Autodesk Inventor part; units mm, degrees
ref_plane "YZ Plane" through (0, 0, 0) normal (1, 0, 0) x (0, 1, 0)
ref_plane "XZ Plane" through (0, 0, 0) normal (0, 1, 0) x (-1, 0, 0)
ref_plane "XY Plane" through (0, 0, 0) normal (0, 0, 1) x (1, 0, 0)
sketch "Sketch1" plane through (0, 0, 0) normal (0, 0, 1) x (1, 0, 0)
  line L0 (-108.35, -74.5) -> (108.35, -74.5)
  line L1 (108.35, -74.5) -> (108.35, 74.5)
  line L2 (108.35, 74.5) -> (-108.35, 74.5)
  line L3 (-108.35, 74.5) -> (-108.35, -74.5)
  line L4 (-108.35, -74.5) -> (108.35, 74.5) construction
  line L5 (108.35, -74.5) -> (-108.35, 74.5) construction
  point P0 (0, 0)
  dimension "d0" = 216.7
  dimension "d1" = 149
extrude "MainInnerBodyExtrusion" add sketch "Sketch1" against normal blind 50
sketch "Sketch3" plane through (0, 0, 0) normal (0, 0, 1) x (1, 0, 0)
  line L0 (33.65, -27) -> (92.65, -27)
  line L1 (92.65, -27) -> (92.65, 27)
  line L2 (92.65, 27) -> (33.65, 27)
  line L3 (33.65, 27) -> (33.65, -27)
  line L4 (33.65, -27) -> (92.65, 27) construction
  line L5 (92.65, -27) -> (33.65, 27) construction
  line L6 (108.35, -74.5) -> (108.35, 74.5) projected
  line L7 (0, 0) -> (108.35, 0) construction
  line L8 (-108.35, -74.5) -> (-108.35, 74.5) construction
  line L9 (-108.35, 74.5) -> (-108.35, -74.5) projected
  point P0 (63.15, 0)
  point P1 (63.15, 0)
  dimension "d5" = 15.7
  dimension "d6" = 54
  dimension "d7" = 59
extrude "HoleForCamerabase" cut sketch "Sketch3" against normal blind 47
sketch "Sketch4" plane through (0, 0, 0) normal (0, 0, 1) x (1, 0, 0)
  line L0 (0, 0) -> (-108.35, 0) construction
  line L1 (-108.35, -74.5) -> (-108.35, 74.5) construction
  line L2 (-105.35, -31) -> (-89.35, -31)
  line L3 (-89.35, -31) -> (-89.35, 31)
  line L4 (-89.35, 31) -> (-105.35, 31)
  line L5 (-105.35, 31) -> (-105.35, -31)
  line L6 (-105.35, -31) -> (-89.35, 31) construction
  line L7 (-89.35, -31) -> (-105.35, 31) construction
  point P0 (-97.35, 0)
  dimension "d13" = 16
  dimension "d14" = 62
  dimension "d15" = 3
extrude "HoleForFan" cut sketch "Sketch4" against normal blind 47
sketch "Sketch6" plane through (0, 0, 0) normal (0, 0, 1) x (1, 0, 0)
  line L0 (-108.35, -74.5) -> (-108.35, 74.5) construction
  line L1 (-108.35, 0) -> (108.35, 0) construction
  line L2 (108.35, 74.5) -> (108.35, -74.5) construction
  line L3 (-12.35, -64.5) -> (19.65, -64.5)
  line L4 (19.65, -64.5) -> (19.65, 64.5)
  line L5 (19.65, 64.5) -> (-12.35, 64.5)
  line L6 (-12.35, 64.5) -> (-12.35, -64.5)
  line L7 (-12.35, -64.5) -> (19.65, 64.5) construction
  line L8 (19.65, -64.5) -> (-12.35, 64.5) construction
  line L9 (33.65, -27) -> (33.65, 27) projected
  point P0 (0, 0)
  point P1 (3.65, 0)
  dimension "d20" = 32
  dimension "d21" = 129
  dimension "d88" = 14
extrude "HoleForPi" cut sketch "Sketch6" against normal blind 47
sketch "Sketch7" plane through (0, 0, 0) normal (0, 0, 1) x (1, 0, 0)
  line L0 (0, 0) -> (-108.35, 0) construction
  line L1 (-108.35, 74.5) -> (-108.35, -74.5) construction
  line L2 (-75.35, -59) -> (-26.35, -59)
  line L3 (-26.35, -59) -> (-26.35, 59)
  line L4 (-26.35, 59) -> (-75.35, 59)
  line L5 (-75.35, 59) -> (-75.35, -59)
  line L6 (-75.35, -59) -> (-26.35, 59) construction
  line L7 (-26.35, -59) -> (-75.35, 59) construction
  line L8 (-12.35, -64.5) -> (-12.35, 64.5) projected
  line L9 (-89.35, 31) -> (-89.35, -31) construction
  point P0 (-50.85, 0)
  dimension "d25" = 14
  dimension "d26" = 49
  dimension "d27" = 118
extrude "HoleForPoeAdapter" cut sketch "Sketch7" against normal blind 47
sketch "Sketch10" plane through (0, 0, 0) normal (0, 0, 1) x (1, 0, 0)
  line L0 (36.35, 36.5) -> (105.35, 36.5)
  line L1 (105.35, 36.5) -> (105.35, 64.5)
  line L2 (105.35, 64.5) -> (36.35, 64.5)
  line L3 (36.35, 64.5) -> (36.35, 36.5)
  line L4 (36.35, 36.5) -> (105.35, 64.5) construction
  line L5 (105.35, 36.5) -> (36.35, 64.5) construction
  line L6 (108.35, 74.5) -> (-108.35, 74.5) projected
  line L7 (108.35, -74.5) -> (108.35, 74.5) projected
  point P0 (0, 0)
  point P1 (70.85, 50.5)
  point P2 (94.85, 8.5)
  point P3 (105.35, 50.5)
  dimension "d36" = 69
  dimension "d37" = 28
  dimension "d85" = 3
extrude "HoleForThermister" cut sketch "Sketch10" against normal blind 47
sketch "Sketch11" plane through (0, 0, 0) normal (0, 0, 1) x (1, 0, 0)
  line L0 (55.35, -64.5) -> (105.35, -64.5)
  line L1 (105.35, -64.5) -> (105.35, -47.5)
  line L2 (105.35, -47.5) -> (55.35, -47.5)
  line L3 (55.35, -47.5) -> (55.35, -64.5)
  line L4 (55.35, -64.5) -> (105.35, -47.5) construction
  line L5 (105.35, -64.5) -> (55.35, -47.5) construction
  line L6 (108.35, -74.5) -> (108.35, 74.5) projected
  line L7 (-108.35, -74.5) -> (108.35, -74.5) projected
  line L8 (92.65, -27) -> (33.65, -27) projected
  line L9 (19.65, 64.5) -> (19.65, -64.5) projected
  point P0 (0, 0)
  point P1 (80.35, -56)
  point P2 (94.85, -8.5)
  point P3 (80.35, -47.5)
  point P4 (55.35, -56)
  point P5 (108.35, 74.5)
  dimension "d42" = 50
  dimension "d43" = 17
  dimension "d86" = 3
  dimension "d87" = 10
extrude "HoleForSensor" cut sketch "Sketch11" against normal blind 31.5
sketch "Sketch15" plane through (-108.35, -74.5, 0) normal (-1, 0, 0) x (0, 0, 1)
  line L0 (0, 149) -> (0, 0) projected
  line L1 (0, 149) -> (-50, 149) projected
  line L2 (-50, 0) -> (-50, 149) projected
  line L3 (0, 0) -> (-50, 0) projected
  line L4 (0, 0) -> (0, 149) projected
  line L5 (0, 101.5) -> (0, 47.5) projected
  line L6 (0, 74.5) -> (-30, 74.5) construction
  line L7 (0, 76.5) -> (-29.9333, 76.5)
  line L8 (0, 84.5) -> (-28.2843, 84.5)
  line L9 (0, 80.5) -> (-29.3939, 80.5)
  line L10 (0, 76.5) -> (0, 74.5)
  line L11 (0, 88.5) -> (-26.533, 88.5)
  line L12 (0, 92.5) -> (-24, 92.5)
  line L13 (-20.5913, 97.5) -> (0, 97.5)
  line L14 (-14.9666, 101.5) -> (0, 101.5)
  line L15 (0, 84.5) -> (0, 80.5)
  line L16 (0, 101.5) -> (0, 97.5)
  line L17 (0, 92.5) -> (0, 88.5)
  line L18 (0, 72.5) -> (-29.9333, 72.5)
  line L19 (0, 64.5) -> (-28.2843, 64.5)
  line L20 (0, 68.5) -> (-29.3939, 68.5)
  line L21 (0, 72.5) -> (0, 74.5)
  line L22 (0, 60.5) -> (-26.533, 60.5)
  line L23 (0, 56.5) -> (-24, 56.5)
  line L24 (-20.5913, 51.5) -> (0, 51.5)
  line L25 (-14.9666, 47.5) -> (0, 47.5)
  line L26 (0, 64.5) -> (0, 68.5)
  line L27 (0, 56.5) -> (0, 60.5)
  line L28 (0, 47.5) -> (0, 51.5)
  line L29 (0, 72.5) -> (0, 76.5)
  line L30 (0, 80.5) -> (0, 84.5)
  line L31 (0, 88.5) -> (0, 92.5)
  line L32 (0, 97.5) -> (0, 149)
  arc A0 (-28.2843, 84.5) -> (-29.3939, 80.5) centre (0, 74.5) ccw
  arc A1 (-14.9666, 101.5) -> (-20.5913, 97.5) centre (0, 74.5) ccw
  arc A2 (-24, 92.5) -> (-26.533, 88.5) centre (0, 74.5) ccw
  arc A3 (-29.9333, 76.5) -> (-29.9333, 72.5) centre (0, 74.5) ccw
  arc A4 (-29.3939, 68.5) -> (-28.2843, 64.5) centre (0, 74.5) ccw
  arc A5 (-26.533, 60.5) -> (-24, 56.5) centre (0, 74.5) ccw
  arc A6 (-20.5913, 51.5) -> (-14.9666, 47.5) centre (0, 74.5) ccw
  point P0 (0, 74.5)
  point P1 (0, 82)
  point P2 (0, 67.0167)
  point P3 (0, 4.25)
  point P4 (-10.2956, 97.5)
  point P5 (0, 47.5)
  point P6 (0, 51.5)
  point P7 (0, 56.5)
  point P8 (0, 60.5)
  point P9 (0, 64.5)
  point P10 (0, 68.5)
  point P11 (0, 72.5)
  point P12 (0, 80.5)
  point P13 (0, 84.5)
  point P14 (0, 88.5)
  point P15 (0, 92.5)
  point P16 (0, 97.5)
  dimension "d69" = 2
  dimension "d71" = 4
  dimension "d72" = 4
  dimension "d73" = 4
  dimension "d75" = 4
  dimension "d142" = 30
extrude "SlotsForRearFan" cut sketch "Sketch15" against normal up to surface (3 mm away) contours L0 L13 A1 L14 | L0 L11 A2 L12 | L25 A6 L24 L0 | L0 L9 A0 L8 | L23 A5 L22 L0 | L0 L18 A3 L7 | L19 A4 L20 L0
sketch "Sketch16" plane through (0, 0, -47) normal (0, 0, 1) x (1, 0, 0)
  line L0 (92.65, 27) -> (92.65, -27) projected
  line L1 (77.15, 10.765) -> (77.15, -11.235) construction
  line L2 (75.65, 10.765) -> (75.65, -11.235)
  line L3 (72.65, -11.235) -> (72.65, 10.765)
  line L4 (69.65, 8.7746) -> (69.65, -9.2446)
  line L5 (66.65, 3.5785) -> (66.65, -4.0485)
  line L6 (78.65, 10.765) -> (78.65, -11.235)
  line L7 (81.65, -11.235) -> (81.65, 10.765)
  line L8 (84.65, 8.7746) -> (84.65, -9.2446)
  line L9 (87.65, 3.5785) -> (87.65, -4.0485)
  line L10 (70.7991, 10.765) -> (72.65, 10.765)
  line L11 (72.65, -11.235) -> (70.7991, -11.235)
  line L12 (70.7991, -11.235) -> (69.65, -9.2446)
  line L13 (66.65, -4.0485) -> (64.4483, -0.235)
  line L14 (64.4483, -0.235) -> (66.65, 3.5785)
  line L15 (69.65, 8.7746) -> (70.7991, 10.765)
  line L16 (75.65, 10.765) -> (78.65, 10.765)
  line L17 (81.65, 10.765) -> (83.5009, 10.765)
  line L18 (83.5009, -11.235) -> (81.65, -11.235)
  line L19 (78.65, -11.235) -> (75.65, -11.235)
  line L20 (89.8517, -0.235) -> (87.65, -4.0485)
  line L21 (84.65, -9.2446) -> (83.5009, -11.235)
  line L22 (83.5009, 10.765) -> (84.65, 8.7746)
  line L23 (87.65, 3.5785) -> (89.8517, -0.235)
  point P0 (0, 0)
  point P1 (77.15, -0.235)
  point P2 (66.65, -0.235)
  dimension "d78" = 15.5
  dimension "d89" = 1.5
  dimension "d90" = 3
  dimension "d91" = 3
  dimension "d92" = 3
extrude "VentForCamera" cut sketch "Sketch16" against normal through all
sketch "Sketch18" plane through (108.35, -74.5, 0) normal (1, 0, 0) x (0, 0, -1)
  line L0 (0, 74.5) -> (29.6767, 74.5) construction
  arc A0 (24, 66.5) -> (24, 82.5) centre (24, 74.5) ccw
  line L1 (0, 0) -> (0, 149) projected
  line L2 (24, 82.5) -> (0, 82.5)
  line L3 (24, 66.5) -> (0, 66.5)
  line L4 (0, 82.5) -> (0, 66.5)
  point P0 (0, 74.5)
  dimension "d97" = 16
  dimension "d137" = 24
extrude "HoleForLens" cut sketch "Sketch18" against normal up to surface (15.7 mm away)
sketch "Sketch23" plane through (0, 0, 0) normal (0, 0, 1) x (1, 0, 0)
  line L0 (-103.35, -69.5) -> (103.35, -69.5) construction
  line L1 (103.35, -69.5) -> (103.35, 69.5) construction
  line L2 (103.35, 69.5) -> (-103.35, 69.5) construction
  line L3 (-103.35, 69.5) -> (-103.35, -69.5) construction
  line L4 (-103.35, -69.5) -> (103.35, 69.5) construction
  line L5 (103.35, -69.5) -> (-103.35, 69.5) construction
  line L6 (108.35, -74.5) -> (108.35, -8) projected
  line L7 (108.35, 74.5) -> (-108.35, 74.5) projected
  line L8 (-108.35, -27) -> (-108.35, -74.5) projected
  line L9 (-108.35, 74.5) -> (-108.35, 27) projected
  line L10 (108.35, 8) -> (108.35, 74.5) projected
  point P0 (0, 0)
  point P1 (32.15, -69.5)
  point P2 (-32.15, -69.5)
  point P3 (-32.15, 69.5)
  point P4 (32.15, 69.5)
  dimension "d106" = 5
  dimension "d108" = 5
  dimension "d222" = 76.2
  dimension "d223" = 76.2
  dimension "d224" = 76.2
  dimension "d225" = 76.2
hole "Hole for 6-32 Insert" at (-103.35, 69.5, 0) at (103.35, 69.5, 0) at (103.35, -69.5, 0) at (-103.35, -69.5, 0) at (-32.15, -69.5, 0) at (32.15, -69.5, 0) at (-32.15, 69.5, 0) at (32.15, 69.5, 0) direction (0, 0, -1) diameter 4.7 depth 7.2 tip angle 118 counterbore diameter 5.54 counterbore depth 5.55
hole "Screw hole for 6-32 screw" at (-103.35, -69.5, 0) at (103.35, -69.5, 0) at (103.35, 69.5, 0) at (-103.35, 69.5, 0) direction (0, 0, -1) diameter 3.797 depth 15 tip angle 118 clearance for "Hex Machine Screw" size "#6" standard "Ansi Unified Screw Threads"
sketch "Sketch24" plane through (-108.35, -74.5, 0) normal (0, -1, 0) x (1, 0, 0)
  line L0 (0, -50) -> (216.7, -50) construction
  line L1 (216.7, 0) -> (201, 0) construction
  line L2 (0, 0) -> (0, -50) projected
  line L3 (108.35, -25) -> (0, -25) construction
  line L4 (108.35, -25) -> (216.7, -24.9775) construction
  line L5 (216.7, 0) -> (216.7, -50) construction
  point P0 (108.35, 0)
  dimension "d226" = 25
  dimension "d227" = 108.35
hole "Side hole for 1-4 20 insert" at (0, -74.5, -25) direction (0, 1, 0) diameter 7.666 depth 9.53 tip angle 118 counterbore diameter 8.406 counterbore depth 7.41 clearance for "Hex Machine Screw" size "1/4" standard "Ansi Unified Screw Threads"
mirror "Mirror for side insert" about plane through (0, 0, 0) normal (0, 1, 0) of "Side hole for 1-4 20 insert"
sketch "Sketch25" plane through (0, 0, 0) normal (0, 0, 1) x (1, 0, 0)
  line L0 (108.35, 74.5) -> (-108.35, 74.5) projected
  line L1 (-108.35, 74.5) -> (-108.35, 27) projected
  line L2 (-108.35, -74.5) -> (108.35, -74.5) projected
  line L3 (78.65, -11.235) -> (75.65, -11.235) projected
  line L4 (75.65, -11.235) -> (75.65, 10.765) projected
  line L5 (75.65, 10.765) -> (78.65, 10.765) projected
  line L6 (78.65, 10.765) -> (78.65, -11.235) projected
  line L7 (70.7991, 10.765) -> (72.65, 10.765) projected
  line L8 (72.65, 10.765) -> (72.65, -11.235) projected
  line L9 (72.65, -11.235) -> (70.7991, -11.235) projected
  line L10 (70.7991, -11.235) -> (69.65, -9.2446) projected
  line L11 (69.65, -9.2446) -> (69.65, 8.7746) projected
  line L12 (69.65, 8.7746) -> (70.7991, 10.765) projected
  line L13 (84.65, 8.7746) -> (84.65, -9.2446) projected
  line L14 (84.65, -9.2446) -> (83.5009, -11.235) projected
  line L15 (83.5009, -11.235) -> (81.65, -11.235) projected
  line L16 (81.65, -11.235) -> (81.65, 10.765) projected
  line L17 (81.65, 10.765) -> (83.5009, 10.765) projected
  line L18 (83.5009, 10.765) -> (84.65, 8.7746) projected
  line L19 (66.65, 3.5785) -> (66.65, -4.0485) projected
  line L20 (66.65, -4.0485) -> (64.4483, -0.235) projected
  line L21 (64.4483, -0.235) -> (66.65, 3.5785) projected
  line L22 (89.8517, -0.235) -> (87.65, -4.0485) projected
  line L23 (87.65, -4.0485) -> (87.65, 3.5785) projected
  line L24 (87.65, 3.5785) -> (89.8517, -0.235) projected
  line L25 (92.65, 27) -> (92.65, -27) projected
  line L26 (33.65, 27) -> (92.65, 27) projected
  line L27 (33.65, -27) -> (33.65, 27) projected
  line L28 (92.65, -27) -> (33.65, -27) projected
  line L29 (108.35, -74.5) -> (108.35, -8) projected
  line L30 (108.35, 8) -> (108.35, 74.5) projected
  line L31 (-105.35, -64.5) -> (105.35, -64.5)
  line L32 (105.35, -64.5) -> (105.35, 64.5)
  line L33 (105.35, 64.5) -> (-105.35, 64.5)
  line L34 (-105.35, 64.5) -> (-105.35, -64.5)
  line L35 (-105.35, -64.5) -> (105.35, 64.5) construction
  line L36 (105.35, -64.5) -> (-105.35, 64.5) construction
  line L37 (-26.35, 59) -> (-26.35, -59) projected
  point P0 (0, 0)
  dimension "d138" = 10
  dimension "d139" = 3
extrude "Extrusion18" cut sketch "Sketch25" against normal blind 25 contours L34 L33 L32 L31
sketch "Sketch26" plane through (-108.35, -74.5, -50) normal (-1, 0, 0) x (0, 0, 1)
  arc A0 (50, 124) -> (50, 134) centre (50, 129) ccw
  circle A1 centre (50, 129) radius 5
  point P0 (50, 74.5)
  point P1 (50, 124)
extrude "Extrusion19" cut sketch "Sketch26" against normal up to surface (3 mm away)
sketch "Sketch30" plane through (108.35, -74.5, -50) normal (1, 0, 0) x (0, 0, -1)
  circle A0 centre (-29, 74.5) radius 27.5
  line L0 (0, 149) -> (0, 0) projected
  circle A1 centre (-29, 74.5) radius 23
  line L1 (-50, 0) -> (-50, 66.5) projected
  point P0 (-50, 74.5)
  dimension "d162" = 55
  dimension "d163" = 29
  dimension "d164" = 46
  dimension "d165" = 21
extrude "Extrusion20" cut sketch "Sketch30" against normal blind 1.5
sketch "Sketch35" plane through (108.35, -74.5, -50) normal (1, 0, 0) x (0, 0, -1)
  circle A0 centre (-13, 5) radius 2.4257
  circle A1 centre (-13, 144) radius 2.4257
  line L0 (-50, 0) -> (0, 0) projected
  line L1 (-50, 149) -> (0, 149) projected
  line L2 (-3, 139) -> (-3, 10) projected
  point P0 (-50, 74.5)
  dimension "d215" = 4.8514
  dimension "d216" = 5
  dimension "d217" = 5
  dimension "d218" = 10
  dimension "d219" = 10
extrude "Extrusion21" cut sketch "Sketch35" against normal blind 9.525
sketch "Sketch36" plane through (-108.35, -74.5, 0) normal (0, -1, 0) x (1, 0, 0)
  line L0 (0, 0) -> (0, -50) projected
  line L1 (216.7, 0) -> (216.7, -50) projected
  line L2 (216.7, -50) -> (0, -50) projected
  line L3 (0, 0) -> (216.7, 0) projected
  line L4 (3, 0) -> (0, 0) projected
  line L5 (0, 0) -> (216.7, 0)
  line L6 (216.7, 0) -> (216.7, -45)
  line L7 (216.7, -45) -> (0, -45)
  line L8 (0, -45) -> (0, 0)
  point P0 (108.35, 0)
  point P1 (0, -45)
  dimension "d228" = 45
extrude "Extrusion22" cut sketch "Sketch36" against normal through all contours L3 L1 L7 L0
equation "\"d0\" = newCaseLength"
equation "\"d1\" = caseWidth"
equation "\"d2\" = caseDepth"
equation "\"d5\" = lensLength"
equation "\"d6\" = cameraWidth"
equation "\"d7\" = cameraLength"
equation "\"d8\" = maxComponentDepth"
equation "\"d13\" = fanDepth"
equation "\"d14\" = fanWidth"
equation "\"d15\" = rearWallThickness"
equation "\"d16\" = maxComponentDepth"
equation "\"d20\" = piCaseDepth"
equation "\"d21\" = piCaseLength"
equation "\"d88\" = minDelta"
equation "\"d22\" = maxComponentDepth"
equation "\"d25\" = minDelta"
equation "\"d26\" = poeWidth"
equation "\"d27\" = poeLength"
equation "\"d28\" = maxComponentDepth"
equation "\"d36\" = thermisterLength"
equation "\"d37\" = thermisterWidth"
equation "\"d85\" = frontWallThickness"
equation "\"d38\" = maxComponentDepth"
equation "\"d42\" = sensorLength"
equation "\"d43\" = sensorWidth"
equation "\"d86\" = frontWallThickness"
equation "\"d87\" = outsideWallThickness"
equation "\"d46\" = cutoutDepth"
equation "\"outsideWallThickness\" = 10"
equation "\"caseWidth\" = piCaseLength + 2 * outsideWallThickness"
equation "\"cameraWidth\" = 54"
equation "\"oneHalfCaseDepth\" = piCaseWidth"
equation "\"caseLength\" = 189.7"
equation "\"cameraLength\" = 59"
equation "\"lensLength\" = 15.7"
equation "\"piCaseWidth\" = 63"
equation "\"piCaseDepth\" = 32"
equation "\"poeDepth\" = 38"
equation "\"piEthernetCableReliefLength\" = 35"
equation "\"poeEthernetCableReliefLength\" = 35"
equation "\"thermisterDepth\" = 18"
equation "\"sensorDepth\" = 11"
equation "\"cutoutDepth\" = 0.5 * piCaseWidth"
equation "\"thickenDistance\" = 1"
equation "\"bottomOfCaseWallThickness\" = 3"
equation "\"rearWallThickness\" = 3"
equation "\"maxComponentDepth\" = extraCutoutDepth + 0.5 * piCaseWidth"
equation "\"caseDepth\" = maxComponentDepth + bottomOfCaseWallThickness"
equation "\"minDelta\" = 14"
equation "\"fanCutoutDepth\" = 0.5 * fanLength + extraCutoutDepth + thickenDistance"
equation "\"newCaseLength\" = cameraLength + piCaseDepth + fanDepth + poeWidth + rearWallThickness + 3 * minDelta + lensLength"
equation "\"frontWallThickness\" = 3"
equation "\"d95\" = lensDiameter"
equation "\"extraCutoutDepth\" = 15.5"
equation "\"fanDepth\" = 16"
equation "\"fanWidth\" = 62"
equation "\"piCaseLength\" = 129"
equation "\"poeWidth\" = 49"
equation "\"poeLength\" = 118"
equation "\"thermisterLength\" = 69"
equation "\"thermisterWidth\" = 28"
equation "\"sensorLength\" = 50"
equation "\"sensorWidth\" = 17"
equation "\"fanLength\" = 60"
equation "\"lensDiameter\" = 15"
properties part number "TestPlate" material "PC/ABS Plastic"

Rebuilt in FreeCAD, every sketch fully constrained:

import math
import FreeCAD as App
import Part
import Sketcher

V = App.Vector
Q = App.Units.Quantity


def add_polygon(sketch, points):
    """Adds a closed chain of lines whose ends are joined by coincident constraints."""
    first, n = sketch.GeometryCount, len(points)
    for a, b in zip(points, points[1:] + points[:1]):
        sketch.addGeometry(Part.LineSegment(App.Vector(*a, 0), App.Vector(*b, 0)), False)
    for i in range(n):
        sketch.addConstraint(Sketcher.Constraint("Coincident", first + i, 2, first + (i + 1) % n, 1))

doc = App.newDocument("Part")
params = doc.addObject("Spreadsheet::Sheet", "Params")
for row, (alias, value) in enumerate([
    ("sketch1_height", "149 mm"),
    ("sketch1_width", "216.7 mm"),
    ("pad1_length", "50 mm"),
    ("sketch2_width", "59 mm"),
    ("sketch2_height", "54 mm"),
    ("pocket1_length", "47 mm"),
    ("sketch3_width", "16 mm"),
    ("sketch3_height", "62 mm"),
    ("pocket2_length", "47 mm"),
    ("sketch4_width", "32 mm"),
    ("sketch4_height", "129 mm"),
    ("pocket3_length", "47 mm"),
    ("sketch5_width", "49 mm"),
    ("sketch5_height", "118 mm"),
    ("pocket4_length", "47 mm"),
    ("sketch6_width", "69 mm"),
    ("sketch6_height", "28 mm"),
    ("pocket5_length", "47 mm"),
    ("sketch7_width", "50 mm"),
    ("sketch7_height", "17 mm"),
    ("pocket6_length", "31.5 mm"),
    ("sketch8_radius", "30 mm"),
    ("sketch8_width", "4 mm"),
    ("pocket7_length", "3 mm"),
    ("sketch9_width", "3 mm"),
    ("sketch9_height", "22 mm"),
    ("sketch10_radius", "8 mm"),
    ("sketch10_height", "24 mm"),
    ("pocket9_length", "15.7 mm"),
    ("sketch11_diameter", "4.7 mm"),
    ("hole_diameter", "4.7 mm"),
    ("hole_depth", "7.2 mm"),
    ("hole_cbore_diameter", "5.54 mm"),
    ("hole_cbore_depth", "5.55 mm"),
    ("hole2_diameter", "3.797 mm"),
    ("hole2_depth", "15 mm"),
    ("hole3_diameter", "7.666 mm"),
    ("hole3_depth", "9.53 mm"),
    ("hole3_cbore_diameter", "8.406 mm"),
    ("hole3_cbore_depth", "7.41 mm"),
    ("sketch14_width", "59 mm"),
    ("sketch14_height", "129 mm"),
    ("sketch14_height2", "54 mm"),
    ("sketch14_width2", "210.7 mm"),
    ("pocket10_length", "25 mm"),
    ("sketch15_diameter", "10 mm"),
    ("pocket11_length", "3 mm"),
    ("sketch16_diameter", "55 mm"),
    ("sketch16_diameter2", "46 mm"),
    ("pocket12_length", "1.5 mm"),
    ("pocket13_length", "9.525 mm"),
    ("sketch18_height", "45 mm"),
    ("sketch18_width", "216.7 mm"),
], start=1):
    params.set(f"A{row}", alias)
    params.set(f"B{row}", "=" + value)
    params.setAlias(f"B{row}", alias)

body = doc.addObject("PartDesign::Body", "Body")

# Sketch on XY plane
sketch1 = doc.addObject("Sketcher::SketchObject", "Sketch")
body.addObject(sketch1)
sketch1.AttachmentSupport = (doc.XY_Plane, [""])
sketch1.MapMode = "FlatFace"
add_polygon(sketch1, [(-108, 74), (-108, -74), (108, -74), (108, 74)])  # lines 0-3
sketch1.addConstraint([
    Sketcher.Constraint("Vertical", 0),
    Sketcher.Constraint("Horizontal", 1),
    Sketcher.Constraint("Vertical", 2),
    Sketcher.Constraint("Horizontal", 3),
    Sketcher.Constraint("Symmetric", 0, 2, 2, 2, -1, 1),
    Sketcher.Constraint("DistanceY", 0, 2, 0, 1, Q("149 mm")),
    Sketcher.Constraint("DistanceX", 1, 1, 1, 2, Q("216.7 mm")),
])
sketch1.setExpression("Constraints[9]", "Params.sketch1_height")
sketch1.setExpression("Constraints[10]", "Params.sketch1_width")
pad1 = doc.addObject("PartDesign::Pad", "Pad")
body.addObject(pad1)
pad1.Profile = sketch1
pad1.setExpression("Length", "Params.pad1_length")
pad1.Reversed = True

# Sketch on XY plane
sketch2 = doc.addObject("Sketcher::SketchObject", "Sketch001")
body.addObject(sketch2)
sketch2.AttachmentSupport = (doc.XY_Plane, [""])
sketch2.MapMode = "FlatFace"
add_polygon(sketch2, [(34, 27), (34, -27), (93, -27), (93, 27)])  # lines 0-3
sketch2.addConstraint([
    Sketcher.Constraint("Vertical", 0),
    Sketcher.Constraint("Horizontal", 1),
    Sketcher.Constraint("Vertical", 2),
    Sketcher.Constraint("Horizontal", 3),
    Sketcher.Constraint("DistanceX", 1, 1, 1, 2, Q("59 mm")),
    Sketcher.Constraint("DistanceY", 0, 2, 0, 1, Q("54 mm")),
    Sketcher.Constraint("DistanceY", 0, 2, -1, 1, Q("27 mm")),
    Sketcher.Constraint("DistanceX", -1, 1, 0, 2, Q("33.65 mm")),
])
sketch2.setExpression("Constraints[8]", "Params.sketch2_width")
sketch2.setExpression("Constraints[9]", "Params.sketch2_height")
pocket1 = doc.addObject("PartDesign::Pocket", "Pocket")
body.addObject(pocket1)
pocket1.Profile = sketch2
pocket1.setExpression("Length", "Params.pocket1_length")

# Sketch on XY plane
sketch3 = doc.addObject("Sketcher::SketchObject", "Sketch002")
body.addObject(sketch3)
sketch3.AttachmentSupport = (doc.XY_Plane, [""])
sketch3.MapMode = "FlatFace"
add_polygon(sketch3, [(-105, 31), (-105, -31), (-89, -31), (-89, 31)])  # lines 0-3
sketch3.addConstraint([
    Sketcher.Constraint("Vertical", 0),
    Sketcher.Constraint("Horizontal", 1),
    Sketcher.Constraint("Vertical", 2),
    Sketcher.Constraint("Horizontal", 3),
    Sketcher.Constraint("DistanceX", 1, 1, 1, 2, Q("16 mm")),
    Sketcher.Constraint("DistanceY", 0, 2, 0, 1, Q("62 mm")),
    Sketcher.Constraint("DistanceY", 0, 2, -1, 1, Q("31 mm")),
    Sketcher.Constraint("DistanceX", 0, 2, -1, 1, Q("105.35 mm")),
])
sketch3.setExpression("Constraints[8]", "Params.sketch3_width")
sketch3.setExpression("Constraints[9]", "Params.sketch3_height")
pocket2 = doc.addObject("PartDesign::Pocket", "Pocket001")
body.addObject(pocket2)
pocket2.Profile = sketch3
pocket2.setExpression("Length", "Params.pocket2_length")

# Sketch on XY plane
sketch4 = doc.addObject("Sketcher::SketchObject", "Sketch003")
body.addObject(sketch4)
sketch4.AttachmentSupport = (doc.XY_Plane, [""])
sketch4.MapMode = "FlatFace"
add_polygon(sketch4, [(-12, 64), (-12, -64), (20, -64), (20, 64)])  # lines 0-3
sketch4.addConstraint([
    Sketcher.Constraint("Vertical", 0),
    Sketcher.Constraint("Horizontal", 1),
    Sketcher.Constraint("Vertical", 2),
    Sketcher.Constraint("Horizontal", 3),
    Sketcher.Constraint("DistanceX", 1, 1, 1, 2, Q("32 mm")),
    Sketcher.Constraint("DistanceY", 0, 2, 0, 1, Q("129 mm")),
    Sketcher.Constraint("DistanceY", 0, 2, -1, 1, Q("64.5 mm")),
    Sketcher.Constraint("DistanceX", 0, 2, -1, 1, Q("12.35 mm")),
])
sketch4.setExpression("Constraints[8]", "Params.sketch4_width")
sketch4.setExpression("Constraints[9]", "Params.sketch4_height")
pocket3 = doc.addObject("PartDesign::Pocket", "Pocket002")
body.addObject(pocket3)
pocket3.Profile = sketch4
pocket3.setExpression("Length", "Params.pocket3_length")

# Sketch on XY plane
sketch5 = doc.addObject("Sketcher::SketchObject", "Sketch004")
body.addObject(sketch5)
sketch5.AttachmentSupport = (doc.XY_Plane, [""])
sketch5.MapMode = "FlatFace"
add_polygon(sketch5, [(-75, 59), (-75, -59), (-26, -59), (-26, 59)])  # lines 0-3
sketch5.addConstraint([
    Sketcher.Constraint("Vertical", 0),
    Sketcher.Constraint("Horizontal", 1),
    Sketcher.Constraint("Vertical", 2),
    Sketcher.Constraint("Horizontal", 3),
    Sketcher.Constraint("DistanceX", 1, 1, 1, 2, Q("49 mm")),
    Sketcher.Constraint("DistanceY", 0, 2, 0, 1, Q("118 mm")),
    Sketcher.Constraint("DistanceY", 0, 2, -1, 1, Q("59 mm")),
    Sketcher.Constraint("DistanceX", 0, 2, -1, 1, Q("75.35 mm")),
])
sketch5.setExpression("Constraints[8]", "Params.sketch5_width")
sketch5.setExpression("Constraints[9]", "Params.sketch5_height")
pocket4 = doc.addObject("PartDesign::Pocket", "Pocket003")
body.addObject(pocket4)
pocket4.Profile = sketch5
pocket4.setExpression("Length", "Params.pocket4_length")

# Sketch on XY plane
sketch6 = doc.addObject("Sketcher::SketchObject", "Sketch005")
body.addObject(sketch6)
sketch6.AttachmentSupport = (doc.XY_Plane, [""])
sketch6.MapMode = "FlatFace"
add_polygon(sketch6, [(36, 64), (36, 36), (105, 36), (105, 64)])  # lines 0-3
sketch6.addConstraint([
    Sketcher.Constraint("Vertical", 0),
    Sketcher.Constraint("Horizontal", 1),
    Sketcher.Constraint("Vertical", 2),
    Sketcher.Constraint("Horizontal", 3),
    Sketcher.Constraint("DistanceX", 1, 1, 1, 2, Q("69 mm")),
    Sketcher.Constraint("DistanceY", 0, 2, 0, 1, Q("28 mm")),
    Sketcher.Constraint("DistanceY", -1, 1, 0, 2, Q("36.5 mm")),
    Sketcher.Constraint("DistanceX", -1, 1, 0, 2, Q("36.35 mm")),
])
sketch6.setExpression("Constraints[8]", "Params.sketch6_width")
sketch6.setExpression("Constraints[9]", "Params.sketch6_height")
pocket5 = doc.addObject("PartDesign::Pocket", "Pocket004")
body.addObject(pocket5)
pocket5.Profile = sketch6
pocket5.setExpression("Length", "Params.pocket5_length")

# Sketch on XY plane
sketch7 = doc.addObject("Sketcher::SketchObject", "Sketch006")
body.addObject(sketch7)
sketch7.AttachmentSupport = (doc.XY_Plane, [""])
sketch7.MapMode = "FlatFace"
add_polygon(sketch7, [(55, -48), (55, -64), (105, -64), (105, -48)])  # lines 0-3
sketch7.addConstraint([
    Sketcher.Constraint("Vertical", 0),
    Sketcher.Constraint("Horizontal", 1),
    Sketcher.Constraint("Vertical", 2),
    Sketcher.Constraint("Horizontal", 3),
    Sketcher.Constraint("DistanceX", 1, 1, 1, 2, Q("50 mm")),
    Sketcher.Constraint("DistanceY", 0, 2, 0, 1, Q("17 mm")),
    Sketcher.Constraint("DistanceY", 0, 2, -1, 1, Q("64.5 mm")),
    Sketcher.Constraint("DistanceX", -1, 1, 0, 2, Q("55.35 mm")),
])
sketch7.setExpression("Constraints[8]", "Params.sketch7_width")
sketch7.setExpression("Constraints[9]", "Params.sketch7_height")
pocket6 = doc.addObject("PartDesign::Pocket", "Pocket005")
body.addObject(pocket6)
pocket6.Profile = sketch7
pocket6.setExpression("Length", "Params.pocket6_length")

# Sketch on YZ plane
sketch8 = doc.addObject("Sketcher::SketchObject", "Sketch007")
body.addObject(sketch8)
sketch8.AttachmentSupport = (doc.YZ_Plane, [""])
sketch8.MapMode = "FlatFace"
sketch8.AttachmentOffset = App.Placement(V(0, 0, -108.35), App.Rotation())
sketch8.addGeometry([
    Part.LineSegment(V(23, 0, 0), V(27, 0, 0)),  # 0
    Part.LineSegment(V(27, 0, 0), V(27, -14.9666, 0)),  # 1
    Part.ArcOfCircle(Part.Circle(V(-0.00276, 0.001738, 0), V(0, 0, 1), 30.87394), math.radians(-41.836243), math.radians(-29.000754)),  # 2
    Part.LineSegment(V(23, -20.5913, 0), V(23, 0, 0)),  # 3
    Part.LineSegment(V(14, 0, 0), V(18, 0, 0)),  # 4
    Part.LineSegment(V(18, 0, 0), V(18, -24, 0)),  # 5
    Part.ArcOfCircle(Part.Circle(V(0, 0, 0), V(0, 0, 1), 30.000041), math.radians(-62.181862), math.radians(-53.130102)),  # 6
    Part.LineSegment(V(14, -26.533, 0), V(14, 0, 0)),  # 7
    Part.LineSegment(V(-27, -14.9666, 0), V(-27, 0, 0)),  # 8
    Part.LineSegment(V(-27, 0, 0), V(-23, 0, 0)),  # 9
    Part.LineSegment(V(-23, 0, 0), V(-23, -20.5913, 0)),  # 10
    Part.ArcOfCircle(Part.Circle(V(-0.002547, -0.002036, 0), V(0, 0, 1), 30.867469), math.radians(-151.000597), math.radians(-138.162406)),  # 11
    Part.LineSegment(V(6, 0, 0), V(10, 0, 0)),  # 12
    Part.LineSegment(V(10, 0, 0), V(10, -28.2843, 0)),  # 13
    Part.ArcOfCircle(Part.Circle(V(0, 0, 0), V(0, 0, 1), 30), math.radians(-78.46305), math.radians(-70.528798)),  # 14
    Part.LineSegment(V(6, -29.3939, 0), V(6, 0, 0)),  # 15
    Part.LineSegment(V(-18, -24, 0), V(-18, 0, 0)),  # 16
    Part.LineSegment(V(-18, 0, 0), V(-14, 0, 0)),  # 17
    Part.LineSegment(V(-14, 0, 0), V(-14, -26.533, 0)),  # 18
    Part.ArcOfCircle(Part.Circle(V(0, 0, 0), V(0, 0, 1), 30), math.radians(-126.869898), math.radians(-117.818138)),  # 19
    Part.LineSegment(V(-2, 0, 0), V(2, 0, 0)),  # 20
    Part.LineSegment(V(2, 0, 0), V(2, -29.9333, 0)),  # 21
    Part.ArcOfCircle(Part.Circle(V(0, 0, 0), V(0, 0, 1), 30.000041), math.radians(-93.822549), math.radians(-86.177451)),  # 22
    Part.LineSegment(V(-2, -29.9333, 0), V(-2, 0, 0)),  # 23
    Part.LineSegment(V(-10, -28.2843, 0), V(-10, 0, 0)),  # 24
    Part.LineSegment(V(-10, 0, 0), V(-6, 0, 0)),  # 25
    Part.LineSegment(V(-6, 0, 0), V(-6, -29.3939, 0)),  # 26
    Part.ArcOfCircle(Part.Circle(V(0, 0, 0), V(0, 0, 1), 30.000041), math.radians(-109.471202), math.radians(-101.53695)),  # 27
], False)
sketch8.addConstraint([
    Sketcher.Constraint("Coincident", 0, 2, 1, 1),
    Sketcher.Constraint("Coincident", 1, 2, 2, 2),
    Sketcher.Constraint("Coincident", 2, 1, 3, 1),
    Sketcher.Constraint("Coincident", 3, 2, 0, 1),
    Sketcher.Constraint("Coincident", 4, 2, 5, 1),
    Sketcher.Constraint("Coincident", 5, 2, 6, 2),
    Sketcher.Constraint("Coincident", 6, 1, 7, 1),
    Sketcher.Constraint("Coincident", 7, 2, 4, 1),
    Sketcher.Constraint("Coincident", 8, 2, 9, 1),
    Sketcher.Constraint("Coincident", 9, 2, 10, 1),
    Sketcher.Constraint("Coincident", 10, 2, 11, 2),
    Sketcher.Constraint("Coincident", 11, 1, 8, 1),
    Sketcher.Constraint("Coincident", 12, 2, 13, 1),
    Sketcher.Constraint("Coincident", 13, 2, 14, 2),
    Sketcher.Constraint("Coincident", 14, 1, 15, 1),
    Sketcher.Constraint("Coincident", 15, 2, 12, 1),
    Sketcher.Constraint("Coincident", 16, 2, 17, 1),
    Sketcher.Constraint("Coincident", 17, 2, 18, 1),
    Sketcher.Constraint("Coincident", 18, 2, 19, 2),
    Sketcher.Constraint("Coincident", 19, 1, 16, 1),
    Sketcher.Constraint("Coincident", 20, 2, 21, 1),
    Sketcher.Constraint("Coincident", 21, 2, 22, 2),
    Sketcher.Constraint("Coincident", 22, 1, 23, 1),
    Sketcher.Constraint("Coincident", 23, 2, 20, 1),
    Sketcher.Constraint("Coincident", 24, 2, 25, 1),
    Sketcher.Constraint("Coincident", 25, 2, 26, 1),
    Sketcher.Constraint("Coincident", 26, 2, 27, 2),
    Sketcher.Constraint("Coincident", 27, 1, 24, 1),
    Sketcher.Constraint("Horizontal", 0),
    Sketcher.Constraint("Vertical", 1),
    Sketcher.Constraint("Vertical", 3),
    Sketcher.Constraint("Horizontal", 4),
    Sketcher.Constraint("Vertical", 5),
    Sketcher.Constraint("Vertical", 7),
    Sketcher.Constraint("Vertical", 8),
    Sketcher.Constraint("Horizontal", 9),
    Sketcher.Constraint("Vertical", 10),
    Sketcher.Constraint("Horizontal", 12),
    Sketcher.Constraint("Vertical", 13),
    Sketcher.Constraint("Vertical", 15),
    Sketcher.Constraint("Vertical", 16),
    Sketcher.Constraint("Horizontal", 17),
    Sketcher.Constraint("Vertical", 18),
    Sketcher.Constraint("Horizontal", 20),
    Sketcher.Constraint("Vertical", 21),
    Sketcher.Constraint("Vertical", 23),
    Sketcher.Constraint("Vertical", 24),
    Sketcher.Constraint("Horizontal", 25),
    Sketcher.Constraint("Vertical", 26),
    Sketcher.Constraint("Coincident", 6, 3, -1, 1),
    Sketcher.Constraint("Coincident", 14, 3, -1, 1),
    Sketcher.Constraint("Coincident", 19, 3, -1, 1),
    Sketcher.Constraint("Coincident", 22, 3, -1, 1),
    Sketcher.Constraint("Coincident", 27, 3, -1, 1),
    Sketcher.Constraint("Equal", 6, 14),
    Sketcher.Constraint("Equal", 14, 19),
    Sketcher.Constraint("Equal", 19, 22),
    Sketcher.Constraint("Equal", 22, 27),
    Sketcher.Constraint("Symmetric", 0, 2, 8, 2, -1, 1),
    Sketcher.Constraint("Symmetric", 4, 2, 16, 2, -1, 1),
    Sketcher.Constraint("Symmetric", 20, 2, 23, 2, -1, 1),
    Sketcher.Constraint("Symmetric", 12, 2, 24, 2, -1, 1),
    Sketcher.Constraint("Symmetric", 3, 2, 9, 2, -2),
    Sketcher.Constraint("Symmetric", 7, 2, 17, 2, -2),
    Sketcher.Constraint("Symmetric", 15, 2, 25, 2, -2),
    Sketcher.Constraint("Symmetric", 2, 3, 11, 3, -1),
    Sketcher.Constraint("Horizontal", 2, 1, 10, 2),
    Sketcher.Constraint("Horizontal", 1, 2, 11, 1),
    Sketcher.Constraint("Equal", 0, 4),
    Sketcher.Constraint("Equal", 9, 12),
    Sketcher.Constraint("Equal", 17, 20),
    Sketcher.Constraint("Radius", 6, Q("30 mm")),
    Sketcher.Constraint("DistanceX", 0, 1, 0, 2, Q("4 mm")),
    Sketcher.Constraint("DistanceX", 12, 2, 7, 2, Q("4 mm")),
    Sketcher.Constraint("DistanceX", 21, 2, 14, 1, Q("4 mm")),
    Sketcher.Constraint("DistanceX", -1, 1, 0, 2, Q("27 mm")),
    Sketcher.Constraint("Radius", 2, Q("30.874 mm")),
    Sketcher.Constraint("Radius", 11, Q("30.8675 mm")),
])
sketch8.setExpression("Constraints[71]", "Params.sketch8_radius")
sketch8.setExpression("Constraints[72]", "Params.sketch8_width")
pocket7 = doc.addObject("PartDesign::Pocket", "Pocket006")
body.addObject(pocket7)
pocket7.Profile = sketch8
pocket7.setExpression("Length", "Params.pocket7_length")
pocket7.Reversed = True

# Sketch on XY plane
sketch9 = doc.addObject("Sketcher::SketchObject", "Sketch008")
body.addObject(sketch9)
sketch9.AttachmentSupport = (doc.XY_Plane, [""])
sketch9.MapMode = "FlatFace"
sketch9.AttachmentOffset = App.Placement(V(0, 0, -47), App.Rotation())
add_polygon(sketch9, [(78.7, 10.8), (75.7, 10.8), (75.7, -11.2), (78.7, -11.2)])  # lines 0-3
add_polygon(sketch9, [(70.8, -11.2), (72.7, -11.2), (72.7, 10.8), (70.8, 10.8), (69.7, 8.8), (69.7, -9.2)])  # lines 4-9
add_polygon(sketch9, [(66.7, -4), (66.7, 3.6), (64.4, -0.2)])  # lines 10-12
add_polygon(sketch9, [(81.7, 10.8), (81.7, -11.2), (83.5, -11.2), (84.7, -9.2), (84.7, 8.8), (83.5, 10.8)])  # lines 13-18
add_polygon(sketch9, [(89.9, -0.2), (87.7, 3.6), (87.7, -4)])  # lines 19-21
sketch9.addConstraint([
    Sketcher.Constraint("Horizontal", 0),
    Sketcher.Constraint("Vertical", 1),
    Sketcher.Constraint("Horizontal", 2),
    Sketcher.Constraint("Vertical", 3),
    Sketcher.Constraint("Horizontal", 4),
    Sketcher.Constraint("Vertical", 5),
    Sketcher.Constraint("Horizontal", 6),
    Sketcher.Constraint("Vertical", 8),
    Sketcher.Constraint("Vertical", 10),
    Sketcher.Constraint("Vertical", 13),
    Sketcher.Constraint("Horizontal", 14),
    Sketcher.Constraint("Vertical", 16),
    Sketcher.Constraint("Horizontal", 18),
    Sketcher.Constraint("Vertical", 20),
    Sketcher.Constraint("Parallel", 7, 11),
    Sketcher.Constraint("Parallel", 9, 12),
    Sketcher.Constraint("Parallel", 11, 15),
    Sketcher.Constraint("Parallel", 12, 17),
    Sketcher.Constraint("Parallel", 17, 19),
    Sketcher.Constraint("Parallel", 15, 21),
    Sketcher.Constraint("Horizontal", 2, 2, 4, 2),
    Sketcher.Constraint("Horizontal", 3, 2, 5, 2),
    Sketcher.Constraint("Horizontal", 9, 2, 13, 2),
    Sketcher.Constraint("Horizontal", 8, 2, 15, 2),
    Sketcher.Constraint("Horizontal", 7, 2, 16, 2),
    Sketcher.Constraint("Horizontal", 6, 2, 17, 2),
    Sketcher.Constraint("Horizontal", 10, 2, 19, 2),
    Sketcher.Constraint("Horizontal", 12, 2, 20, 2),
    Sketcher.Constraint("Horizontal", 11, 2, 21, 2),
    Sketcher.Constraint("Vertical", 6, 2, 9, 2),
    Sketcher.Constraint("Equal", 6, 14),
    Sketcher.Constraint("DistanceX", 0, 2, 0, 1, Q("3 mm")),
    Sketcher.Constraint("DistanceX", 4, 2, 1, 2, Q("3 mm")),
    Sketcher.Constraint("DistanceX", 7, 2, 5, 2, Q("3 mm")),
    Sketcher.Constraint("DistanceX", 10, 2, 7, 2, Q("3 mm")),
    Sketcher.Constraint("DistanceX", 2, 2, 13, 2, Q("3 mm")),
    Sketcher.Constraint("DistanceX", 16, 2, 19, 2, Q("3 mm")),
    Sketcher.Constraint("DistanceY", 1, 2, 1, 1, Q("22 mm")),
    Sketcher.Constraint("Angle", 11, Q("-119.9997 deg")),
    Sketcher.Constraint("DistanceY", 11, 2, 6, 2, Q("11 mm")),
    Sketcher.Constraint("DistanceX", 4, 1, 4, 2, Q("1.851 mm")),
    Sketcher.Constraint("DistanceY", 10, 1, 10, 2, Q("7.627 mm")),
    Sketcher.Constraint("DistanceX", -1, 1, 0, 2, Q("75.65 mm")),
    Sketcher.Constraint("DistanceY", -1, 1, 0, 2, Q("10.765 mm")),
])
sketch9.setExpression("Constraints[53]", "Params.sketch9_width")
sketch9.setExpression("Constraints[59]", "Params.sketch9_height")
pocket8 = doc.addObject("PartDesign::Pocket", "Pocket007")
body.addObject(pocket8)
pocket8.Profile = sketch9
pocket8.Type = "ThroughAll"

# Sketch on YZ plane
sketch10 = doc.addObject("Sketcher::SketchObject", "Sketch009")
body.addObject(sketch10)
sketch10.AttachmentSupport = (doc.YZ_Plane, [""])
sketch10.MapMode = "FlatFace"
sketch10.AttachmentOffset = App.Placement(V(0, 0, 108.35), App.Rotation())
sketch10.addGeometry([
    Part.LineSegment(V(-8, 0, 0), V(-8, -24, 0)),
    Part.ArcOfCircle(Part.Circle(V(0, -24, 0), V(0, 0, 1), 8), math.radians(180), math.radians(360)),
    Part.LineSegment(V(8, -24, 0), V(8, 0, 0)),
    Part.LineSegment(V(8, 0, 0), V(-8, 0, 0)),
], False)
sketch10.addConstraint([
    Sketcher.Constraint("Tangent", 0, 2, 1, 1),
    Sketcher.Constraint("Tangent", 1, 2, 2, 1),
    Sketcher.Constraint("Coincident", 2, 2, 3, 1),
    Sketcher.Constraint("Coincident", 3, 2, 0, 1),
    Sketcher.Constraint("Vertical", 0),
    Sketcher.Constraint("Vertical", 2),
    Sketcher.Constraint("Horizontal", 3),
    Sketcher.Constraint("Symmetric", 2, 2, 3, 2, -1, 1),
    Sketcher.Constraint("Radius", 1, Q("8 mm")),
    Sketcher.Constraint("DistanceY", 0, 2, 0, 1, Q("24 mm")),
])
sketch10.setExpression("Constraints[8]", "Params.sketch10_radius")
sketch10.setExpression("Constraints[9]", "Params.sketch10_height")
pocket9 = doc.addObject("PartDesign::Pocket", "Pocket008")
body.addObject(pocket9)
pocket9.Profile = sketch10
pocket9.setExpression("Length", "Params.pocket9_length")

# Sketch on XY plane
sketch11 = doc.addObject("Sketcher::SketchObject", "Sketch010")
body.addObject(sketch11)
sketch11.AttachmentSupport = (doc.XY_Plane, [""])
sketch11.MapMode = "FlatFace"
sketch11.addGeometry([
    Part.Circle(V(-103.3, 69.5, 0), V(0, 0, 1), 2.4),  # 0
    Part.Circle(V(103.3, 69.5, 0), V(0, 0, 1), 2.4),  # 1
    Part.Circle(V(103.3, -69.5, 0), V(0, 0, 1), 2.4),  # 2
    Part.Circle(V(-103.3, -69.5, 0), V(0, 0, 1), 2.4),  # 3
    Part.Circle(V(-32.1, -69.5, 0), V(0, 0, 1), 2.4),  # 4
    Part.Circle(V(32.1, -69.5, 0), V(0, 0, 1), 2.4),  # 5
    Part.Circle(V(-32.1, 69.5, 0), V(0, 0, 1), 2.4),  # 6
    Part.Circle(V(32.1, 69.5, 0), V(0, 0, 1), 2.4),  # 7
], False)
sketch11.addConstraint([
    Sketcher.Constraint("Equal", 0, 1),
    Sketcher.Constraint("Equal", 1, 2),
    Sketcher.Constraint("Equal", 2, 3),
    Sketcher.Constraint("Equal", 3, 4),
    Sketcher.Constraint("Equal", 4, 5),
    Sketcher.Constraint("Equal", 5, 6),
    Sketcher.Constraint("Equal", 6, 7),
    Sketcher.Constraint("Symmetric", 0, 3, 2, 3, -1, 1),
    Sketcher.Constraint("Symmetric", 1, 3, 3, 3, -1, 1),
    Sketcher.Constraint("Symmetric", 5, 3, 6, 3, -1, 1),
    Sketcher.Constraint("Symmetric", 4, 3, 7, 3, -1, 1),
    Sketcher.Constraint("Symmetric", 0, 3, 1, 3, -2),
    Sketcher.Constraint("Symmetric", 4, 3, 5, 3, -2),
    Sketcher.Constraint("Horizontal", 3, 3, 4, 3),
    Sketcher.Constraint("Diameter", 0, Q("4.7 mm")),
    Sketcher.Constraint("DistanceY", 2, 3, 1, 3, Q("139 mm")),
    Sketcher.Constraint("DistanceX", 0, 3, 1, 3, Q("206.7 mm")),
    Sketcher.Constraint("DistanceX", 3, 3, 4, 3, Q("71.2 mm")),
])
sketch11.setExpression("Constraints[14]", "Params.sketch11_diameter")
doc.recompute()
hole = doc.addObject("PartDesign::Hole", "Hole")
body.addObject(hole)
hole.Profile = sketch11
hole.ThreadType = "None"
hole.setExpression("Diameter", "Params.hole_diameter")
hole.DepthType = "Dimension"
hole.setExpression("Depth", "Params.hole_depth")
hole.DrillPoint = "Angled"
hole.DrillPointAngle = 118
hole.HoleCutType = "Counterbore"
hole.setExpression("HoleCutDiameter", "Params.hole_cbore_diameter")
hole.setExpression("HoleCutDepth", "Params.hole_cbore_depth")

# Sketch on XY plane
sketch12 = doc.addObject("Sketcher::SketchObject", "Sketch011")
body.addObject(sketch12)
sketch12.AttachmentSupport = (doc.XY_Plane, [""])
sketch12.MapMode = "FlatFace"
sketch12.addGeometry([
    Part.Circle(V(-103.3, -69.5, 0), V(0, 0, 1), 1.9),
    Part.Circle(V(103.3, -69.5, 0), V(0, 0, 1), 1.9),
    Part.Circle(V(103.3, 69.5, 0), V(0, 0, 1), 1.9),
    Part.Circle(V(-103.3, 69.5, 0), V(0, 0, 1), 1.9),
], False)
sketch12.addConstraint([
    Sketcher.Constraint("Equal", 0, 1),
    Sketcher.Constraint("Equal", 1, 2),
    Sketcher.Constraint("Equal", 2, 3),
    Sketcher.Constraint("Symmetric", 0, 3, 2, 3, -1, 1),
    Sketcher.Constraint("Symmetric", 1, 3, 3, 3, -1, 1),
    Sketcher.Constraint("Symmetric", 0, 3, 1, 3, -2),
    Sketcher.Constraint("Diameter", 0, Q("3.797 mm")),
    Sketcher.Constraint("DistanceY", 1, 3, 2, 3, Q("139 mm")),
    Sketcher.Constraint("DistanceX", 0, 3, 1, 3, Q("206.7 mm")),
])
doc.recompute()
hole2 = doc.addObject("PartDesign::Hole", "Hole001")
body.addObject(hole2)
hole2.Profile = sketch12
hole2.ThreadType = "None"
hole2.setExpression("Diameter", "Params.hole2_diameter")
hole2.DepthType = "Dimension"
hole2.setExpression("Depth", "Params.hole2_depth")
hole2.DrillPoint = "Angled"
hole2.DrillPointAngle = 118

# Sketch on XZ plane
sketch13 = doc.addObject("Sketcher::SketchObject", "Sketch012")
body.addObject(sketch13)
sketch13.AttachmentSupport = (doc.XZ_Plane, [""])
sketch13.MapMode = "FlatFace"
sketch13.AttachmentOffset = App.Placement(V(0, 0, 74.5), App.Rotation())
sketch13.addGeometry(Part.Circle(V(0, -25, 0), V(0, 0, 1), 3.8), False)
sketch13.addConstraint([
    Sketcher.Constraint("PointOnObject", 0, 3, -2),
    Sketcher.Constraint("Diameter", 0, Q("7.666 mm")),
    Sketcher.Constraint("DistanceY", 0, 3, -1, 1, Q("25 mm")),
])
doc.recompute()
hole3 = doc.addObject("PartDesign::Hole", "Hole002")
body.addObject(hole3)
hole3.Profile = sketch13
hole3.ThreadType = "None"
hole3.setExpression("Diameter", "Params.hole3_diameter")
hole3.DepthType = "Dimension"
hole3.setExpression("Depth", "Params.hole3_depth")
hole3.DrillPoint = "Angled"
hole3.DrillPointAngle = 118
hole3.HoleCutType = "Counterbore"
hole3.setExpression("HoleCutDiameter", "Params.hole3_cbore_diameter")
hole3.setExpression("HoleCutDepth", "Params.hole3_cbore_depth")
doc.recompute()

mirrored = doc.addObject("PartDesign::Mirrored", "Mirrored")
body.addObject(mirrored)
mirrored.Originals = [hole3]
mirrored.MirrorPlane = (doc.XZ_Plane, [""])
body.Tip = mirrored

# Sketch on XY plane
sketch14 = doc.addObject("Sketcher::SketchObject", "Sketch013")
body.addObject(sketch14)
sketch14.AttachmentSupport = (doc.XY_Plane, [""])
sketch14.MapMode = "FlatFace"
add_polygon(sketch14, [(-105, 64), (-105, -64), (105, -64), (105, 64)])  # lines 0-3
add_polygon(sketch14, [(34, 27), (93, 27), (93, -27), (34, -27)])  # lines 4-7
sketch14.addConstraint([
    Sketcher.Constraint("Vertical", 0),
    Sketcher.Constraint("Horizontal", 1),
    Sketcher.Constraint("Vertical", 2),
    Sketcher.Constraint("Horizontal", 3),
    Sketcher.Constraint("Horizontal", 4),
    Sketcher.Constraint("Vertical", 5),
    Sketcher.Constraint("Horizontal", 6),
    Sketcher.Constraint("Vertical", 7),
    Sketcher.Constraint("Symmetric", 0, 2, 2, 2, -1, 1),
    Sketcher.Constraint("DistanceX", 4, 1, 4, 2, Q("59 mm")),
    Sketcher.Constraint("DistanceY", 0, 2, 0, 1, Q("129 mm")),
    Sketcher.Constraint("DistanceY", 5, 2, 5, 1, Q("54 mm")),
    Sketcher.Constraint("DistanceX", 1, 1, 1, 2, Q("210.7 mm")),
    Sketcher.Constraint("DistanceY", -1, 1, 4, 2, Q("27 mm")),
    Sketcher.Constraint("DistanceX", 3, 2, 4, 2, Q("198 mm")),
])
sketch14.setExpression("Constraints[17]", "Params.sketch14_width")
sketch14.setExpression("Constraints[18]", "Params.sketch14_height")
sketch14.setExpression("Constraints[19]", "Params.sketch14_height2")
sketch14.setExpression("Constraints[20]", "Params.sketch14_width2")
pocket10 = doc.addObject("PartDesign::Pocket", "Pocket009")
body.addObject(pocket10)
pocket10.Profile = sketch14
pocket10.setExpression("Length", "Params.pocket10_length")

# Sketch on YZ plane
sketch15 = doc.addObject("Sketcher::SketchObject", "Sketch014")
body.addObject(sketch15)
sketch15.AttachmentSupport = (doc.YZ_Plane, [""])
sketch15.MapMode = "FlatFace"
sketch15.AttachmentOffset = App.Placement(V(0, 0, -108.35), App.Rotation())
sketch15.addGeometry(Part.Circle(V(54, 0, 0), V(0, 0, 1), 5), False)
sketch15.addConstraint([
    Sketcher.Constraint("PointOnObject", 0, 3, -1),
    Sketcher.Constraint("Diameter", 0, Q("10 mm")),
    Sketcher.Constraint("DistanceX", -1, 1, 0, 3, Q("54.5 mm")),
])
sketch15.setExpression("Constraints[1]", "Params.sketch15_diameter")
pocket11 = doc.addObject("PartDesign::Pocket", "Pocket010")
body.addObject(pocket11)
pocket11.Profile = sketch15
pocket11.setExpression("Length", "Params.pocket11_length")
pocket11.Reversed = True

# Sketch on YZ plane
sketch16 = doc.addObject("Sketcher::SketchObject", "Sketch015")
body.addObject(sketch16)
sketch16.AttachmentSupport = (doc.YZ_Plane, [""])
sketch16.MapMode = "FlatFace"
sketch16.AttachmentOffset = App.Placement(V(0, 0, 108.35), App.Rotation())
sketch16.addGeometry([
    Part.Circle(V(0, -21, 0), V(0, 0, 1), 28),
    Part.Circle(V(0, -21, 0), V(0, 0, 1), 23),
], False)
sketch16.addConstraint([
    Sketcher.Constraint("Coincident", 1, 3, 0, 3),
    Sketcher.Constraint("PointOnObject", 0, 3, -2),
    Sketcher.Constraint("Diameter", 0, Q("55 mm")),
    Sketcher.Constraint("Diameter", 1, Q("46 mm")),
    Sketcher.Constraint("DistanceY", 0, 3, -1, 1, Q("21 mm")),
])
sketch16.setExpression("Constraints[2]", "Params.sketch16_diameter")
sketch16.setExpression("Constraints[3]", "Params.sketch16_diameter2")
pocket12 = doc.addObject("PartDesign::Pocket", "Pocket011")
body.addObject(pocket12)
pocket12.Profile = sketch16
pocket12.setExpression("Length", "Params.pocket12_length")

# Sketch on YZ plane
sketch17 = doc.addObject("Sketcher::SketchObject", "Sketch016")
body.addObject(sketch17)
sketch17.AttachmentSupport = (doc.YZ_Plane, [""])
sketch17.MapMode = "FlatFace"
sketch17.AttachmentOffset = App.Placement(V(0, 0, 108.35), App.Rotation())
sketch17.addGeometry([
    Part.Circle(V(-69.5, -37, 0), V(0, 0, 1), 2.4),
    Part.Circle(V(69.5, -37, 0), V(0, 0, 1), 2.4),
], False)
sketch17.addConstraint([
    Sketcher.Constraint("Equal", 0, 1),
    Sketcher.Constraint("Symmetric", 0, 3, 1, 3, -2),
    Sketcher.Constraint("Diameter", 0, Q("4.8514 mm")),
    Sketcher.Constraint("DistanceY", 0, 3, -1, 1, Q("37 mm")),
    Sketcher.Constraint("DistanceX", 0, 3, 1, 3, Q("139 mm")),
])
pocket13 = doc.addObject("PartDesign::Pocket", "Pocket012")
body.addObject(pocket13)
pocket13.Profile = sketch17
pocket13.setExpression("Length", "Params.pocket13_length")

# Sketch on XZ plane
sketch18 = doc.addObject("Sketcher::SketchObject", "Sketch017")
body.addObject(sketch18)
sketch18.AttachmentSupport = (doc.XZ_Plane, [""])
sketch18.MapMode = "FlatFace"
sketch18.AttachmentOffset = App.Placement(V(0, 0, 74.5), App.Rotation())
add_polygon(sketch18, [(108, 0), (-108, 0), (-108, -45), (108, -45)])  # lines 0-3
sketch18.addConstraint([
    Sketcher.Constraint("Horizontal", 0),
    Sketcher.Constraint("Vertical", 1),
    Sketcher.Constraint("Horizontal", 2),
    Sketcher.Constraint("Vertical", 3),
    Sketcher.Constraint("Symmetric", 0, 2, 3, 2, -1, 1),
    Sketcher.Constraint("DistanceY", 1, 2, 1, 1, Q("45 mm")),
    Sketcher.Constraint("DistanceX", 0, 2, 0, 1, Q("216.7 mm")),
])
sketch18.setExpression("Constraints[9]", "Params.sketch18_height")
sketch18.setExpression("Constraints[10]", "Params.sketch18_width")
pocket14 = doc.addObject("PartDesign::Pocket", "Pocket013")
body.addObject(pocket14)
pocket14.Profile = sketch18
pocket14.Type = "ThroughAll"

doc.recompute()
